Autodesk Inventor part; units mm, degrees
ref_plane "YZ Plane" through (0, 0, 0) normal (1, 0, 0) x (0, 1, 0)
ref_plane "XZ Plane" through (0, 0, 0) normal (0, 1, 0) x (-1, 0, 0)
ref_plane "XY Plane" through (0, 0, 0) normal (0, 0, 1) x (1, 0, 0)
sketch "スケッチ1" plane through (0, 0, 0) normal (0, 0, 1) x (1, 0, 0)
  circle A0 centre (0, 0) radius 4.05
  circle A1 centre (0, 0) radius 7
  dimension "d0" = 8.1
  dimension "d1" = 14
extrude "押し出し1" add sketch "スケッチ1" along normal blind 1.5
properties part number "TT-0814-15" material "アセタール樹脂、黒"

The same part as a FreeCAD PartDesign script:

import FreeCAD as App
import Part
import Sketcher

V = App.Vector
Q = App.Units.Quantity

doc = App.newDocument("Part")
body = doc.addObject("PartDesign::Body", "Body")

sketch1 = body.newObject("Sketcher::SketchObject", "Sketch")
sketch1.AttachmentSupport = (doc.getObject("XY_Plane"), [""])
sketch1.MapMode = "FlatFace"
sketch1.addGeometry(Part.Circle(V(0, 0, 0), V(0, 0, 1), 7), False)
sketch1.addGeometry(Part.Circle(V(0, 0, 0), V(0, 0, 1), 4), False)
sketch1.addConstraint(Sketcher.Constraint("Coincident", 0, 3, -1, 1))
sketch1.addConstraint(Sketcher.Constraint("Coincident", 1, 3, -1, 1))
sketch1.addConstraint(Sketcher.Constraint("Diameter", 0, Q("14 mm")))
sketch1.addConstraint(Sketcher.Constraint("Diameter", 1, Q("8.1 mm")))
pad1 = body.newObject("PartDesign::Pad", "Pad")
pad1.Profile = sketch1
pad1.Length = 1.5

doc.recompute()
